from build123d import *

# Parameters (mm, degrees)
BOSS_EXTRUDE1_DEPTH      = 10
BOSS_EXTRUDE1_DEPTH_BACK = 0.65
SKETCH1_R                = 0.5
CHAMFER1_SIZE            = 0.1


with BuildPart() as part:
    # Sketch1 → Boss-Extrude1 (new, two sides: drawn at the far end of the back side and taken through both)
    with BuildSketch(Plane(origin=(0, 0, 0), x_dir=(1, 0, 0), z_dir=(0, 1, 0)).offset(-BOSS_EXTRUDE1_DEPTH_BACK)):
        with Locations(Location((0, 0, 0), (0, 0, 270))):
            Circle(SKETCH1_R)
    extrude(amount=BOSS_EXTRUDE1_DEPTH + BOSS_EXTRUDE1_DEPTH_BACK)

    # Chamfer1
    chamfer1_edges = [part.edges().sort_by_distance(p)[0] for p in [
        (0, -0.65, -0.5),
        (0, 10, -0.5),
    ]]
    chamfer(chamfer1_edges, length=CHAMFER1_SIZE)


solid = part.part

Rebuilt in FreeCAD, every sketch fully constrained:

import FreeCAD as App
import Part
import Sketcher
from FreeCAD import Vector
Q = App.Units.Quantity


def edges_at(feature, points):
    """Names of the edges that pass closest to the given points."""
    edges = feature.Shape.Edges
    near = lambda p: min(range(len(edges)), key=lambda i: edges[i].distToShape(Part.Vertex(*p))[0])
    return sorted({f"Edge{near(p) + 1}" for p in points})

doc = App.newDocument("Part")
body = doc.addObject("PartDesign::Body", "Body")

sketch1 = body.newObject("Sketcher::SketchObject", "Sketch")
sketch1.AttachmentSupport = (doc.getObject("XZ_Plane"), [""])
sketch1.MapMode = "FlatFace"
sketch1.addGeometry(Part.Circle(Vector(0, 0, 0), Vector(0, 0, 1), 0.5), False)
sketch1.addConstraint(Sketcher.Constraint("Coincident", 0, 3, -1, 1))
sketch1.addConstraint(Sketcher.Constraint("Diameter", 0, Q("1 mm")))
pad1 = body.newObject("PartDesign::Pad", "Pad")
pad1.Profile = sketch1
pad1.Type = "TwoLengths"
pad1.Length = 10
pad1.Length2 = 0.65
pad1.Reversed = True
doc.recompute()

chamfer = body.newObject("PartDesign::Chamfer", "Chamfer")
chamfer.Base = (pad1, edges_at(pad1, [(0, -0.65, -0.5), (0, 10, -0.5)]))
chamfer.Size = 0.1

doc.recompute()
